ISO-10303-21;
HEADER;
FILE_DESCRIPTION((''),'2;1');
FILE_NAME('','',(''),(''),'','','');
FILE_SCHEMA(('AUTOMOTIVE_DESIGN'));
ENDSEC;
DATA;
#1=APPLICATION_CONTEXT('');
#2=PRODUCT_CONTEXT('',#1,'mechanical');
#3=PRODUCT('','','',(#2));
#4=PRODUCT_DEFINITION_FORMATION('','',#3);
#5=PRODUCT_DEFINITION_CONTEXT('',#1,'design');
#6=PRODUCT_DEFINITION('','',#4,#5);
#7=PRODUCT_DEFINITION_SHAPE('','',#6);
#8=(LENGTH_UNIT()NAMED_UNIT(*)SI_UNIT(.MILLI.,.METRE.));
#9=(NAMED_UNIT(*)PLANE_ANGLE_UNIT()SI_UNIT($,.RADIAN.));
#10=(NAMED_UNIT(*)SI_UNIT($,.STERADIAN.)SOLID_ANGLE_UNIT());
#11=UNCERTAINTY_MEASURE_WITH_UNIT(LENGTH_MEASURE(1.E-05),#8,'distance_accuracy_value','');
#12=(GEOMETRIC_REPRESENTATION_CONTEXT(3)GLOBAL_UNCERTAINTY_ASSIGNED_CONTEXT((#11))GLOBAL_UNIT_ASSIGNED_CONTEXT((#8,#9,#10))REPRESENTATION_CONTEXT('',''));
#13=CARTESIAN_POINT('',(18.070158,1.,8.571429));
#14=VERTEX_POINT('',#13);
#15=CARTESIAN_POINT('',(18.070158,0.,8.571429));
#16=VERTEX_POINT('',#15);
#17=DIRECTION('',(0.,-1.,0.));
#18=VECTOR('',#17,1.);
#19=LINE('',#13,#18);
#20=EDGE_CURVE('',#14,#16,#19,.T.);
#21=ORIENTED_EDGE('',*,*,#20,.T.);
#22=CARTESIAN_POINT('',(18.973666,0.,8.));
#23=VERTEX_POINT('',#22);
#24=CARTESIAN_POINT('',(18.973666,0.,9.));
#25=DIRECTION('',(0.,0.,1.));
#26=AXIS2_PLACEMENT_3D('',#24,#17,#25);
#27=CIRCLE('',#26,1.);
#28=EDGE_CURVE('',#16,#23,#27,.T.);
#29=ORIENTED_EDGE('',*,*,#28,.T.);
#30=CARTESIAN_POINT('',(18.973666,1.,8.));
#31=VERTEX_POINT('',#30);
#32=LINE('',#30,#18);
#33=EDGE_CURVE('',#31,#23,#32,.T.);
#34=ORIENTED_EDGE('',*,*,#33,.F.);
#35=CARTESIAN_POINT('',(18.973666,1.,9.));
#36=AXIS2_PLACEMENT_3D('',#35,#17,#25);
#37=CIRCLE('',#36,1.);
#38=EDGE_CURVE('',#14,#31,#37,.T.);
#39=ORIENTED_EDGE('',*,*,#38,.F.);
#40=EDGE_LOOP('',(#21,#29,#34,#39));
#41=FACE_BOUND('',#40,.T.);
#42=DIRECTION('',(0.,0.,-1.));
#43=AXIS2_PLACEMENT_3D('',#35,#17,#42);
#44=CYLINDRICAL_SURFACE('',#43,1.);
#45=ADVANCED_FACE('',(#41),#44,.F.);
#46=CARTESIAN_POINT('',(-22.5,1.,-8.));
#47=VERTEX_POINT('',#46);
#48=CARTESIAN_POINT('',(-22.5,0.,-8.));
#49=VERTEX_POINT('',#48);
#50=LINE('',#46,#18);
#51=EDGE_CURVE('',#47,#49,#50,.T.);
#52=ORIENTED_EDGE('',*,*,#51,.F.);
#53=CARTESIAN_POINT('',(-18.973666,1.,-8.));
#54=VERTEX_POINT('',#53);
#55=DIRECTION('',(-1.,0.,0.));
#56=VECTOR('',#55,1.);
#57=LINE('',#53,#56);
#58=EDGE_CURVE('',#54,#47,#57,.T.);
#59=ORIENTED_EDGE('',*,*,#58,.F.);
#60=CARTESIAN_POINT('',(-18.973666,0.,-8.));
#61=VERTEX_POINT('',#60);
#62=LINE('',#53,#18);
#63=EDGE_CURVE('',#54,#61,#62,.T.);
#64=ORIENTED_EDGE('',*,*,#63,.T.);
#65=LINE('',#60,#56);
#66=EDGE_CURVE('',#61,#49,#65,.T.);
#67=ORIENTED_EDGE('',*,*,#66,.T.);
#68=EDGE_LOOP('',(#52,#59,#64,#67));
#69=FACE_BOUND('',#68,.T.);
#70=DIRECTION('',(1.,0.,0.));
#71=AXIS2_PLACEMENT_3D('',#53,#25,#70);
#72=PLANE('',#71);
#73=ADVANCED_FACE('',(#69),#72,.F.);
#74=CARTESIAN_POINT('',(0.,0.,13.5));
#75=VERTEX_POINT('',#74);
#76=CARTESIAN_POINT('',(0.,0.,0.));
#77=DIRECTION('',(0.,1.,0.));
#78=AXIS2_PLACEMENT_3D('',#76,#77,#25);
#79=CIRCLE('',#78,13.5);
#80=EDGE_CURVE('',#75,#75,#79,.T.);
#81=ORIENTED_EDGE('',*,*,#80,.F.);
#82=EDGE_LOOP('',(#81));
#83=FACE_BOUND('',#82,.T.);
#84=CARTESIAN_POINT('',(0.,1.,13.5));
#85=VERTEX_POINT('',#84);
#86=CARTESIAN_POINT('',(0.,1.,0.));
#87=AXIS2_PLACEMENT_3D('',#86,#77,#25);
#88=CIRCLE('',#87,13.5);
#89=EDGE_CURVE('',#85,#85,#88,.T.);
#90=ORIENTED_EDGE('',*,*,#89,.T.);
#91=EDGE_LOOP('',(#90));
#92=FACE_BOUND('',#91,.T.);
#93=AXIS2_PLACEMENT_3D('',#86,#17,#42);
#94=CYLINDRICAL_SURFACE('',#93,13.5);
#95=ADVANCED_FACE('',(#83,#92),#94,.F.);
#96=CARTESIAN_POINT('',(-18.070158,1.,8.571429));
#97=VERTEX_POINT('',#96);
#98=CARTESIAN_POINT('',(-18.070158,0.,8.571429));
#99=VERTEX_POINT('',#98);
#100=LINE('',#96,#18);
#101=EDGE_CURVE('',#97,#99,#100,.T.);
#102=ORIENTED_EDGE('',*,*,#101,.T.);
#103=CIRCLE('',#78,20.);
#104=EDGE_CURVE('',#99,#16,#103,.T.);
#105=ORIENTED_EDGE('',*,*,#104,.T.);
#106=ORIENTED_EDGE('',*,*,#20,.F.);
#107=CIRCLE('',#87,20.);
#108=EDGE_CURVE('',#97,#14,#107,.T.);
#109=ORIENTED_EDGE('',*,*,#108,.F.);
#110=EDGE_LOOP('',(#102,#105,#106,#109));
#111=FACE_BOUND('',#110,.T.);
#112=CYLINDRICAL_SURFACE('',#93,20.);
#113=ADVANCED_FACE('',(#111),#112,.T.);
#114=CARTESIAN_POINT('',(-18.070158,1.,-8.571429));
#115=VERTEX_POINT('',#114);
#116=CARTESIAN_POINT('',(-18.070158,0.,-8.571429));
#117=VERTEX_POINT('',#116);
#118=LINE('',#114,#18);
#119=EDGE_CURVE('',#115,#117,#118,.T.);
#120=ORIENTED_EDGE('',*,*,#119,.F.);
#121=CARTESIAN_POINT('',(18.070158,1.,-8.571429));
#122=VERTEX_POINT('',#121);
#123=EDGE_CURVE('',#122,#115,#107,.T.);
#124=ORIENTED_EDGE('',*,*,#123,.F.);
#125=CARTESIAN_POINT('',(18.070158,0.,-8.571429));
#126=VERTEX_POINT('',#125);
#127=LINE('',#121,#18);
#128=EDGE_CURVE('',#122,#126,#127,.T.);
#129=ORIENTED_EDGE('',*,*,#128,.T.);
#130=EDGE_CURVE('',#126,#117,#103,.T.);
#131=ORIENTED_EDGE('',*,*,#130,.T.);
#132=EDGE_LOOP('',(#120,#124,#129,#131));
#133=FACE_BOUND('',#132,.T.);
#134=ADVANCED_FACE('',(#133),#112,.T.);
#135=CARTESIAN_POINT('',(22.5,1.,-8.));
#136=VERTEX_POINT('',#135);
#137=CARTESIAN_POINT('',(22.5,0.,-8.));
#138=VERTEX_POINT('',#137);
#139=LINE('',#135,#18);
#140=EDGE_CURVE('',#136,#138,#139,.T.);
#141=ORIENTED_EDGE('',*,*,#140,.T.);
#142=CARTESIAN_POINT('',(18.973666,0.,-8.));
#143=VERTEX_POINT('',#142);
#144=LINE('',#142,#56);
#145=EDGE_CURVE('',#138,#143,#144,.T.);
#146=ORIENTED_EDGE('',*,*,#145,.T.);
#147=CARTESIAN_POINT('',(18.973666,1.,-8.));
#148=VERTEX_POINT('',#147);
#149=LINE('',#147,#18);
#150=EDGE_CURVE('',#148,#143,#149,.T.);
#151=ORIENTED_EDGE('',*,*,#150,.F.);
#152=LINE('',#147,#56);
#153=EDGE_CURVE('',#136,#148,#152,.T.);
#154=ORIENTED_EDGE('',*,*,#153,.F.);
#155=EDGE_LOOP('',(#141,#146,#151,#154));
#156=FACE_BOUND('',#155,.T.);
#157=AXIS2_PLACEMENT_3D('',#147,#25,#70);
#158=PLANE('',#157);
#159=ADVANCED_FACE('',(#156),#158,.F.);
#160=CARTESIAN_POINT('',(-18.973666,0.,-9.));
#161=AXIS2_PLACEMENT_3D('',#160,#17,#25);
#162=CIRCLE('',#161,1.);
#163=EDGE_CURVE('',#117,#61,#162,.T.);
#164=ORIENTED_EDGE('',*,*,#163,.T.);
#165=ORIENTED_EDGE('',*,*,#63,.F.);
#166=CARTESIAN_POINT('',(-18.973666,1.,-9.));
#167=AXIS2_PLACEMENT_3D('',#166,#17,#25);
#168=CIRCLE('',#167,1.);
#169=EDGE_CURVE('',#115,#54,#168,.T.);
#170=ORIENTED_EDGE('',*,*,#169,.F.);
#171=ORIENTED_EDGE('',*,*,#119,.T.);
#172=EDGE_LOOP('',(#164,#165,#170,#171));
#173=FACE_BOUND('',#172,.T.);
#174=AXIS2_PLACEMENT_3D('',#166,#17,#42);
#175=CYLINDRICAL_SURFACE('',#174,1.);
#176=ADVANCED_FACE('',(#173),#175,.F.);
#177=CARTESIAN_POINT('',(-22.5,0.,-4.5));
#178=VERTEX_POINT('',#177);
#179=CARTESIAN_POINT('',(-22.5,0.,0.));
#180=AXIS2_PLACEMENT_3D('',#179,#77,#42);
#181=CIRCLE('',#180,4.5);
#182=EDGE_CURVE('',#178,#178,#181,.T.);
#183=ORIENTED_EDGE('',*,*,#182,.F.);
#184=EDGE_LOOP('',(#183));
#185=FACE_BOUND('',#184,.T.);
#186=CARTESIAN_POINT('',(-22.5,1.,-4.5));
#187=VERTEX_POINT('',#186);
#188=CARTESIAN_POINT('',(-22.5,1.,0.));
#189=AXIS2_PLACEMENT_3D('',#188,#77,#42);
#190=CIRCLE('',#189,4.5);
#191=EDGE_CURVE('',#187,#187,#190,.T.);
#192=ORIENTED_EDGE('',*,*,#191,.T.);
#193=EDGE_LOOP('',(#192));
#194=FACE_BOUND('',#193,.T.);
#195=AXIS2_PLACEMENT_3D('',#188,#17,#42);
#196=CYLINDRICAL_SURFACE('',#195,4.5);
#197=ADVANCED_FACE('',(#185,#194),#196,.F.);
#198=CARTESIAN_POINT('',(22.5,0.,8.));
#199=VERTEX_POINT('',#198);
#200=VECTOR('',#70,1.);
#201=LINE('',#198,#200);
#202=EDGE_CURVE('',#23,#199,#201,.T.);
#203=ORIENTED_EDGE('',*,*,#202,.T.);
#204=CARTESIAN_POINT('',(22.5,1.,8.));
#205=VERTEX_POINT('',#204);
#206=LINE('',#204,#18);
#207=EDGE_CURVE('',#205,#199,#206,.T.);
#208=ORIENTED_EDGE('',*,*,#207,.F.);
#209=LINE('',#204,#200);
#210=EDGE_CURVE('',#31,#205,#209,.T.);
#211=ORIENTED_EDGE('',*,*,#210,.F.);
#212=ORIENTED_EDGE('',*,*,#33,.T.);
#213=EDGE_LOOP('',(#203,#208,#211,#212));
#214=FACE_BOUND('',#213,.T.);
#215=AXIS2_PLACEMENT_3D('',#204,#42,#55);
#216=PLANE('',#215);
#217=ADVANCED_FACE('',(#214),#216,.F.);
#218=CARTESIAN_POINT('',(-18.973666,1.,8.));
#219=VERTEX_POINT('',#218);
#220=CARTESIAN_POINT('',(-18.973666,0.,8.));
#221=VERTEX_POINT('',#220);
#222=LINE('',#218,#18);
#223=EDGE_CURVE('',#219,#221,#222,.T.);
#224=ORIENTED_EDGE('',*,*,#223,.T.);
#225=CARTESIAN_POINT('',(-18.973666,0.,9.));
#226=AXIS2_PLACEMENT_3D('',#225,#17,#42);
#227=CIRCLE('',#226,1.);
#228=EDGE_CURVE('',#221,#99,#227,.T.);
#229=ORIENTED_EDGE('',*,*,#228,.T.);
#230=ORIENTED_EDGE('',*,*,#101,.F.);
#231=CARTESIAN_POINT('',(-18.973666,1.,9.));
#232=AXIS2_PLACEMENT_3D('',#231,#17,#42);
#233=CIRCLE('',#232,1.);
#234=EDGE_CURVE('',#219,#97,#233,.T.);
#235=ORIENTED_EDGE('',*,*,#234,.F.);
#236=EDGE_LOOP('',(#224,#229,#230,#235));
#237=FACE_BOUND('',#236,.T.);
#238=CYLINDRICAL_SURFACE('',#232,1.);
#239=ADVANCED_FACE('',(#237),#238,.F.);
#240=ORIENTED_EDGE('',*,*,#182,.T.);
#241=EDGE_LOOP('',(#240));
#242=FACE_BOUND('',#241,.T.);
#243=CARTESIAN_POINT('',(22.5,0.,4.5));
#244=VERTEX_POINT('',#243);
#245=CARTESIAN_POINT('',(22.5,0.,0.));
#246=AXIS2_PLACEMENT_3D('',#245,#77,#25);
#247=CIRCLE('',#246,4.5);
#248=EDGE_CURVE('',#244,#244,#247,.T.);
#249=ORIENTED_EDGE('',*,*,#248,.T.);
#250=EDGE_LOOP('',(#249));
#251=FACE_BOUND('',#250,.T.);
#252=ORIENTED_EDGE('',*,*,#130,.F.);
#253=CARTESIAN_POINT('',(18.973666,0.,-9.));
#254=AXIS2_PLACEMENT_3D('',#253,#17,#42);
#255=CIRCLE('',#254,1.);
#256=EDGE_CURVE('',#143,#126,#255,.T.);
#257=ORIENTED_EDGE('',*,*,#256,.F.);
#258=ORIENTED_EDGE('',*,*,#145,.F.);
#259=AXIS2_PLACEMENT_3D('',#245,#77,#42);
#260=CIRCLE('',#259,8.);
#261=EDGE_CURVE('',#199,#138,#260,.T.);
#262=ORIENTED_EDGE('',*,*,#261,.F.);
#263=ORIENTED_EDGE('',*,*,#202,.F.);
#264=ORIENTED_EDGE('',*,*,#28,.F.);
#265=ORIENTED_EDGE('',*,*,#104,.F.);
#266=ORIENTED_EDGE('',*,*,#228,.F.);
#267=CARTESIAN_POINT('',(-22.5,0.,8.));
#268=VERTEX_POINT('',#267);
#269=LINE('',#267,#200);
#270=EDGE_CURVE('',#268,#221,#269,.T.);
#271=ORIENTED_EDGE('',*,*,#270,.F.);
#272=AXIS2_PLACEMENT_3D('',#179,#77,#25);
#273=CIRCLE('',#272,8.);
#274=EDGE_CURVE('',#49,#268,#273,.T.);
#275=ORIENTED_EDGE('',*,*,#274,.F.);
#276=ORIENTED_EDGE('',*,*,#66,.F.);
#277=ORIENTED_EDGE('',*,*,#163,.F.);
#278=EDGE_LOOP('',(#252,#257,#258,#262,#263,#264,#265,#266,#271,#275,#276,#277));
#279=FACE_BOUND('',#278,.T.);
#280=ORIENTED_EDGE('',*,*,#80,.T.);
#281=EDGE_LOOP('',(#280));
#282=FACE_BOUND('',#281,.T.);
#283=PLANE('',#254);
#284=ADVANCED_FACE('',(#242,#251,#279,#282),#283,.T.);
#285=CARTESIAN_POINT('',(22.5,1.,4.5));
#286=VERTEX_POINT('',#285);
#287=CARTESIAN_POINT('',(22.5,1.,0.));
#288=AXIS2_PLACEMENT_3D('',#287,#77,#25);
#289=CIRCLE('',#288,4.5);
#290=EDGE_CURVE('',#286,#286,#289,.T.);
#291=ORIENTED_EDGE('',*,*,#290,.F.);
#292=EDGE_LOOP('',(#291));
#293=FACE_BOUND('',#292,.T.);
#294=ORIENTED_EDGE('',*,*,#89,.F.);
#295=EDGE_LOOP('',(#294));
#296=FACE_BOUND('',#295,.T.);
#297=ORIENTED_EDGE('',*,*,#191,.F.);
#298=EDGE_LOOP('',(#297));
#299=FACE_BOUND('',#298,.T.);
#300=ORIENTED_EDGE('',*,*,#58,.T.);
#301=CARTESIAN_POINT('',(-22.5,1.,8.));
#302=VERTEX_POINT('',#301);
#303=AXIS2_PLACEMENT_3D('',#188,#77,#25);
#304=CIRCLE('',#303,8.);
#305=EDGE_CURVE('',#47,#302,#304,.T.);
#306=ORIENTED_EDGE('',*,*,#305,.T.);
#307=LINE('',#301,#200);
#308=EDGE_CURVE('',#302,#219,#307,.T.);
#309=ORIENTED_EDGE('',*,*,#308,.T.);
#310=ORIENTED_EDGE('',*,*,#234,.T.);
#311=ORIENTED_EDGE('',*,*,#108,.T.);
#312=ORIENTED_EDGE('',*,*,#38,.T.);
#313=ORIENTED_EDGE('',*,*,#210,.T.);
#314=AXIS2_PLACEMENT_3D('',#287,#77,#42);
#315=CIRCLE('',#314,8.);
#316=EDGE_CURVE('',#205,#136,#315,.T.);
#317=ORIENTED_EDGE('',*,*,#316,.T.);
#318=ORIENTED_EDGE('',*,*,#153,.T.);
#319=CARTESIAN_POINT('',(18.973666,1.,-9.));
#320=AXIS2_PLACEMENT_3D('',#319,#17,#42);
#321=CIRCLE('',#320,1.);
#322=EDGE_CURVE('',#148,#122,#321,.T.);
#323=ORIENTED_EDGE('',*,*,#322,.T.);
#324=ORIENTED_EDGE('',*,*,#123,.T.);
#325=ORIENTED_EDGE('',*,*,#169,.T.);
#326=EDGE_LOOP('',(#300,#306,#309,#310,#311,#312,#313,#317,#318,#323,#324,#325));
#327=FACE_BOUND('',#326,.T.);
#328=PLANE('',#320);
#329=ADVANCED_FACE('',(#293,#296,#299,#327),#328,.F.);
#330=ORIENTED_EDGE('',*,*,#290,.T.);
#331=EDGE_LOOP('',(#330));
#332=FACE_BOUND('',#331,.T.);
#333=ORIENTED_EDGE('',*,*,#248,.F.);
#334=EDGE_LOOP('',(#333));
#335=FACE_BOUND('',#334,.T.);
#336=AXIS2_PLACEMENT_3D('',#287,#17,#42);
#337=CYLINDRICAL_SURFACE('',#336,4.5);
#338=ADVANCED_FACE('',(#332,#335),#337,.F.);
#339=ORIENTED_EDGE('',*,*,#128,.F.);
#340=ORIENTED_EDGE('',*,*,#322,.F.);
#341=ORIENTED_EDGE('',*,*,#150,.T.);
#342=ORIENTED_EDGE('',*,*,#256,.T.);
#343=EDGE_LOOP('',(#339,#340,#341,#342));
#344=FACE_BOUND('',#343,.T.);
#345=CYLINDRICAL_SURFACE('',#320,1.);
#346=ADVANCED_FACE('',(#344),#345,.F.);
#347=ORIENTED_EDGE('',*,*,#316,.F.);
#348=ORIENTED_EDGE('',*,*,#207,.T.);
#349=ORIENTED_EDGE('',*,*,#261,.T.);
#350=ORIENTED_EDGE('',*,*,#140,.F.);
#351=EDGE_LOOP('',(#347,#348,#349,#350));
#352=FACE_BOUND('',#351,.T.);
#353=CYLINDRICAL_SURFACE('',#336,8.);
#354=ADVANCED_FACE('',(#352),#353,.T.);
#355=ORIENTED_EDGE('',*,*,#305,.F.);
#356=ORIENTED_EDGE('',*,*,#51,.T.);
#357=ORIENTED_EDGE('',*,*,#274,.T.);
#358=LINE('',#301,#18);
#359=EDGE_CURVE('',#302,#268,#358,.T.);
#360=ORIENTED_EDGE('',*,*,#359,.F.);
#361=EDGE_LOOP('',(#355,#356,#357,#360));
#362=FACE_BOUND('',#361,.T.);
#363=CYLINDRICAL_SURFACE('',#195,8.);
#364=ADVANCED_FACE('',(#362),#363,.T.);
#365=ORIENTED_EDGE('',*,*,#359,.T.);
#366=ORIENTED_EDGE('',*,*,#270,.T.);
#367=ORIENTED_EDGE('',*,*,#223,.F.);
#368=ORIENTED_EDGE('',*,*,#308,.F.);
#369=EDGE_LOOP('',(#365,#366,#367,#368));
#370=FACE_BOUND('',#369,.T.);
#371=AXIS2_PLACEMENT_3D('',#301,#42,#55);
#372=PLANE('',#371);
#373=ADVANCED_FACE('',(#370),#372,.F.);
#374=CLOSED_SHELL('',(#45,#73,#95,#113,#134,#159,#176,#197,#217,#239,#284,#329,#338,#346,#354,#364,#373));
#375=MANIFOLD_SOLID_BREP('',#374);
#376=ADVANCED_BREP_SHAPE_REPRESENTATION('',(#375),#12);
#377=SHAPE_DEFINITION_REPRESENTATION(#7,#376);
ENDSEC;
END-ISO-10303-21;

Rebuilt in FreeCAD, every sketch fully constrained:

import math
import FreeCAD as App
import Part
import Sketcher
from FreeCAD import Vector

doc = App.newDocument("Part")
params = doc.addObject("Spreadsheet::Sheet", "Params")
for row, (alias, value) in enumerate([
    ("sketch1_diameter", "9 mm"),
    ("sketch1_diameter2", "27 mm"),
    ("sketch1_radius", "1 mm"),
    ("sketch1_radius2", "20 mm"),
    ("sketch1_radius3", "8 mm"),
    ("pad1_length", "1 mm"),
], start=1):
    params.set(f"A{row}", alias)
    params.set(f"B{row}", "=" + value)
    params.setAlias(f"B{row}", alias)

body = doc.addObject("PartDesign::Body", "Body")

# Sketch on XZ plane
sketch1 = body.newObject("Sketcher::SketchObject", "Sketch")
sketch1.AttachmentSupport = (doc.getObject("XZ_Plane"), [""])
sketch1.MapMode = "FlatFace"
sketch1.addGeometry([
    Part.LineSegment(Vector(22.5, -8, 0), Vector(19, -8, 0)),  # 0
    Part.ArcOfCircle(Part.Circle(Vector(19, -9, 0), Vector(0, 0, 1), 1), math.radians(90), math.radians(155)),  # 1
    Part.ArcOfCircle(Part.Circle(Vector(0, 0, 0), Vector(0, 0, 1), 20), math.radians(-155), math.radians(-25)),  # 2
    Part.ArcOfCircle(Part.Circle(Vector(-19, -9, 0), Vector(0, 0, 1), 1), math.radians(25), math.radians(90)),  # 3
    Part.LineSegment(Vector(-19, -8, 0), Vector(-22.5, -8, 0)),  # 4
    Part.ArcOfCircle(Part.Circle(Vector(-22.5, 0, 0), Vector(0, 0, 1), 8), math.radians(90), math.radians(270)),  # 5
    Part.LineSegment(Vector(-22.5, 8, 0), Vector(-19, 8, 0)),  # 6
    Part.ArcOfCircle(Part.Circle(Vector(-19, 9, 0), Vector(0, 0, 1), 1), math.radians(-90), math.radians(-25)),  # 7
    Part.ArcOfCircle(Part.Circle(Vector(0, 0, 0), Vector(0, 0, 1), 20), math.radians(25), math.radians(155)),  # 8
    Part.ArcOfCircle(Part.Circle(Vector(19, 9, 0), Vector(0, 0, 1), 1), math.radians(-155), math.radians(-90)),  # 9
    Part.LineSegment(Vector(19, 8, 0), Vector(22.5, 8, 0)),  # 10
    Part.ArcOfCircle(Part.Circle(Vector(22.5, 0, 0), Vector(0, 0, 1), 8), math.radians(-90), math.radians(90)),  # 11
    Part.Circle(Vector(22.5, 0, 0), Vector(0, 0, 1), 4.5),  # 12
    Part.Circle(Vector(0, 0, 0), Vector(0, 0, 1), 13.5),  # 13
    Part.Circle(Vector(-22.5, 0, 0), Vector(0, 0, 1), 4.5),  # 14
], False)
sketch1.addConstraint([
    Sketcher.Constraint("Tangent", 0, 2, 1, 1),
    Sketcher.Constraint("Tangent", 1, 2, 2, 2),
    Sketcher.Constraint("Tangent", 2, 1, 3, 1),
    Sketcher.Constraint("Tangent", 3, 2, 4, 1),
    Sketcher.Constraint("Tangent", 4, 2, 5, 2),
    Sketcher.Constraint("Tangent", 5, 1, 6, 1),
    Sketcher.Constraint("Tangent", 6, 2, 7, 1),
    Sketcher.Constraint("Tangent", 7, 2, 8, 2),
    Sketcher.Constraint("Tangent", 8, 1, 9, 1),
    Sketcher.Constraint("Tangent", 9, 2, 10, 1),
    Sketcher.Constraint("Tangent", 10, 2, 11, 2),
    Sketcher.Constraint("Tangent", 11, 1, 0, 1),
    Sketcher.Constraint("Horizontal", 0),
    Sketcher.Constraint("Horizontal", 4),
    Sketcher.Constraint("Horizontal", 6),
    Sketcher.Constraint("Horizontal", 10),
    Sketcher.Constraint("Coincident", 2, 3, -1, 1),
    Sketcher.Constraint("Coincident", 8, 3, -1, 1),
    Sketcher.Constraint("Coincident", 13, 3, -1, 1),
    Sketcher.Constraint("Coincident", 12, 3, 11, 3),
    Sketcher.Constraint("Coincident", 14, 3, 5, 3),
    Sketcher.Constraint("Equal", 1, 3),
    Sketcher.Constraint("Equal", 3, 7),
    Sketcher.Constraint("Equal", 2, 8),
    Sketcher.Constraint("Equal", 7, 9),
    Sketcher.Constraint("Equal", 5, 11),
    Sketcher.Constraint("Equal", 12, 14),
    Sketcher.Constraint("Symmetric", 5, 3, 11, 3, -1, 1),
    Sketcher.Constraint("PointOnObject", 5, 3, -1),
    Sketcher.Constraint("Diameter", 12, 9.0),
    Sketcher.Constraint("Diameter", 13, 27.0),
    Sketcher.Constraint("Radius", 1, 1.0),
    Sketcher.Constraint("Radius", 2, 20.0),
    Sketcher.Constraint("Radius", 5, 8.0),
    Sketcher.Constraint("DistanceX", 5, 3, -1, 1, 22.5),
])
sketch1.setExpression("Constraints[29]", "Params.sketch1_diameter")
sketch1.setExpression("Constraints[30]", "Params.sketch1_diameter2")
sketch1.setExpression("Constraints[31]", "Params.sketch1_radius")
sketch1.setExpression("Constraints[32]", "Params.sketch1_radius2")
sketch1.setExpression("Constraints[33]", "Params.sketch1_radius3")
pad1 = body.newObject("PartDesign::Pad", "Pad")
pad1.Profile = sketch1
pad1.setExpression("Length", "Params.pad1_length")
pad1.Reversed = True

doc.recompute()
